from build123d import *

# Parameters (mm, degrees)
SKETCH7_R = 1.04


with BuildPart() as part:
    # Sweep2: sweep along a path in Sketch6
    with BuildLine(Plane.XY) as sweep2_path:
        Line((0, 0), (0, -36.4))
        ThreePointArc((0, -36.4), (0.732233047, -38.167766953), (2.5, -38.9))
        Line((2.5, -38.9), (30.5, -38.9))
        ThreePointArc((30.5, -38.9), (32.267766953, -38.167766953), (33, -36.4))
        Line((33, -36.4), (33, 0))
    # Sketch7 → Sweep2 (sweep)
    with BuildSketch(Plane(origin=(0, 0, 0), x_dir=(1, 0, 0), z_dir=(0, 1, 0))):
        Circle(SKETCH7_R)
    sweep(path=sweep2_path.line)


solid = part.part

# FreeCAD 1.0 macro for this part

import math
import FreeCAD as App
import Part
import Sketcher
from FreeCAD import Vector

doc = App.newDocument("Part")
params = doc.addObject("Spreadsheet::Sheet", "Params")
for row, (alias, value) in enumerate([
    ("sketch1_diameter", "2.08 mm"),
    ("sketch2_radius", "2.5 mm"),
    ("sketch2_width", "28 mm"),
    ("sketch2_height", "36.4 mm"),
], start=1):
    params.set(f"A{row}", alias)
    params.set(f"B{row}", "=" + value)
    params.setAlias(f"B{row}", alias)

body = doc.addObject("PartDesign::Body", "Body")

# Sketch on XZ plane
sketch1 = doc.addObject("Sketcher::SketchObject", "Sketch")
body.addObject(sketch1)
sketch1.AttachmentSupport = (doc.XZ_Plane, [""])
sketch1.MapMode = "FlatFace"
sketch1.addGeometry(Part.Circle(Vector(0, 0, 0), Vector(0, 0, 1), 1.04), False)
sketch1.addConstraint([
    Sketcher.Constraint("Coincident", 0, 3, -1, 1),
    Sketcher.Constraint("Diameter", 0, 2.08),
])
sketch1.setExpression("Constraints[1]", "Params.sketch1_diameter")

# Sketch on XY plane
sketch2 = doc.addObject("Sketcher::SketchObject", "Sketch001")
body.addObject(sketch2)
sketch2.AttachmentSupport = (doc.XY_Plane, [""])
sketch2.MapMode = "FlatFace"
sketch2.addGeometry([
    Part.LineSegment(Vector(0, 0, 0), Vector(0, -36.4, 0)),  # 0
    Part.ArcOfCircle(Part.Circle(Vector(2.5, -36.4, 0), Vector(0, 0, 1), 2.5), math.radians(180), math.radians(270)),  # 1
    Part.LineSegment(Vector(2.5, -38.9, 0), Vector(30.5, -38.9, 0)),  # 2
    Part.ArcOfCircle(Part.Circle(Vector(30.5, -36.4, 0), Vector(0, 0, 1), 2.5), math.radians(-90), math.radians(0)),  # 3
    Part.LineSegment(Vector(33, -36.4, 0), Vector(33, 0, 0)),  # 4
], False)
sketch2.addConstraint([
    Sketcher.Constraint("Tangent", 0, 2, 1, 1),
    Sketcher.Constraint("Tangent", 1, 2, 2, 1),
    Sketcher.Constraint("Tangent", 2, 2, 3, 1),
    Sketcher.Constraint("Tangent", 3, 2, 4, 1),
    Sketcher.Constraint("Vertical", 0),
    Sketcher.Constraint("Horizontal", 2),
    Sketcher.Constraint("Vertical", 4),
    Sketcher.Constraint("Coincident", 0, 1, -1, 1),
    Sketcher.Constraint("Equal", 1, 3),
    Sketcher.Constraint("PointOnObject", 4, 2, -1),
    Sketcher.Constraint("Radius", 1, 2.5),
    Sketcher.Constraint("DistanceX", 2, 1, 2, 2, 28.0),
    Sketcher.Constraint("DistanceY", 0, 2, 0, 1, 36.4),
])
sketch2.setExpression("Constraints[10]", "Params.sketch2_radius")
sketch2.setExpression("Constraints[11]", "Params.sketch2_width")
sketch2.setExpression("Constraints[12]", "Params.sketch2_height")
doc.recompute()

additivepipe = doc.addObject("PartDesign::AdditivePipe", "AdditivePipe")
body.addObject(additivepipe)
additivepipe.Profile = sketch1
additivepipe.Spine = (sketch2, ["Edge1", "Edge2", "Edge3", "Edge4", "Edge5"])

doc.recompute()
